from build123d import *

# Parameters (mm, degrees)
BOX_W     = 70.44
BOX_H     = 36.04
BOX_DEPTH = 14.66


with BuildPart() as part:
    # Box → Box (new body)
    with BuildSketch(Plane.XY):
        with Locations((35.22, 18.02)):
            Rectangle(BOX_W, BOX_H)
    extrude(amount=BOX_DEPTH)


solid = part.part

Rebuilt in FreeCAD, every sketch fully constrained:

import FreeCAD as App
import Part
import Sketcher
from FreeCAD import Vector
Q = App.Units.Quantity

doc = App.newDocument("Part")
body = doc.addObject("PartDesign::Body", "Body")

# Sketch on XY plane
sketch1 = body.newObject("Sketcher::SketchObject", "Sketch")
sketch1.AttachmentSupport = (doc.getObject("XY_Plane"), [""])
sketch1.MapMode = "FlatFace"
sketch1.addGeometry([
    Part.LineSegment(Vector(0, 36, 0), Vector(0, 0, 0)),
    Part.LineSegment(Vector(0, 0, 0), Vector(70, 0, 0)),
    Part.LineSegment(Vector(70, 0, 0), Vector(70, 36, 0)),
    Part.LineSegment(Vector(70, 36, 0), Vector(0, 36, 0)),
], False)
sketch1.addConstraint([
    Sketcher.Constraint("Coincident", 0, 2, 1, 1),
    Sketcher.Constraint("Coincident", 1, 2, 2, 1),
    Sketcher.Constraint("Coincident", 2, 2, 3, 1),
    Sketcher.Constraint("Coincident", 3, 2, 0, 1),
    Sketcher.Constraint("Vertical", 0),
    Sketcher.Constraint("Horizontal", 1),
    Sketcher.Constraint("Vertical", 2),
    Sketcher.Constraint("Horizontal", 3),
    Sketcher.Constraint("Coincident", 0, 2, -1, 1),
    Sketcher.Constraint("DistanceX", 1, 1, 1, 2, Q("70.44 mm")),
    Sketcher.Constraint("DistanceY", 0, 2, 0, 1, Q("36.04 mm")),
])
pad1 = body.newObject("PartDesign::Pad", "Pad")
pad1.Profile = sketch1
pad1.Length = 14.66

doc.recompute()
